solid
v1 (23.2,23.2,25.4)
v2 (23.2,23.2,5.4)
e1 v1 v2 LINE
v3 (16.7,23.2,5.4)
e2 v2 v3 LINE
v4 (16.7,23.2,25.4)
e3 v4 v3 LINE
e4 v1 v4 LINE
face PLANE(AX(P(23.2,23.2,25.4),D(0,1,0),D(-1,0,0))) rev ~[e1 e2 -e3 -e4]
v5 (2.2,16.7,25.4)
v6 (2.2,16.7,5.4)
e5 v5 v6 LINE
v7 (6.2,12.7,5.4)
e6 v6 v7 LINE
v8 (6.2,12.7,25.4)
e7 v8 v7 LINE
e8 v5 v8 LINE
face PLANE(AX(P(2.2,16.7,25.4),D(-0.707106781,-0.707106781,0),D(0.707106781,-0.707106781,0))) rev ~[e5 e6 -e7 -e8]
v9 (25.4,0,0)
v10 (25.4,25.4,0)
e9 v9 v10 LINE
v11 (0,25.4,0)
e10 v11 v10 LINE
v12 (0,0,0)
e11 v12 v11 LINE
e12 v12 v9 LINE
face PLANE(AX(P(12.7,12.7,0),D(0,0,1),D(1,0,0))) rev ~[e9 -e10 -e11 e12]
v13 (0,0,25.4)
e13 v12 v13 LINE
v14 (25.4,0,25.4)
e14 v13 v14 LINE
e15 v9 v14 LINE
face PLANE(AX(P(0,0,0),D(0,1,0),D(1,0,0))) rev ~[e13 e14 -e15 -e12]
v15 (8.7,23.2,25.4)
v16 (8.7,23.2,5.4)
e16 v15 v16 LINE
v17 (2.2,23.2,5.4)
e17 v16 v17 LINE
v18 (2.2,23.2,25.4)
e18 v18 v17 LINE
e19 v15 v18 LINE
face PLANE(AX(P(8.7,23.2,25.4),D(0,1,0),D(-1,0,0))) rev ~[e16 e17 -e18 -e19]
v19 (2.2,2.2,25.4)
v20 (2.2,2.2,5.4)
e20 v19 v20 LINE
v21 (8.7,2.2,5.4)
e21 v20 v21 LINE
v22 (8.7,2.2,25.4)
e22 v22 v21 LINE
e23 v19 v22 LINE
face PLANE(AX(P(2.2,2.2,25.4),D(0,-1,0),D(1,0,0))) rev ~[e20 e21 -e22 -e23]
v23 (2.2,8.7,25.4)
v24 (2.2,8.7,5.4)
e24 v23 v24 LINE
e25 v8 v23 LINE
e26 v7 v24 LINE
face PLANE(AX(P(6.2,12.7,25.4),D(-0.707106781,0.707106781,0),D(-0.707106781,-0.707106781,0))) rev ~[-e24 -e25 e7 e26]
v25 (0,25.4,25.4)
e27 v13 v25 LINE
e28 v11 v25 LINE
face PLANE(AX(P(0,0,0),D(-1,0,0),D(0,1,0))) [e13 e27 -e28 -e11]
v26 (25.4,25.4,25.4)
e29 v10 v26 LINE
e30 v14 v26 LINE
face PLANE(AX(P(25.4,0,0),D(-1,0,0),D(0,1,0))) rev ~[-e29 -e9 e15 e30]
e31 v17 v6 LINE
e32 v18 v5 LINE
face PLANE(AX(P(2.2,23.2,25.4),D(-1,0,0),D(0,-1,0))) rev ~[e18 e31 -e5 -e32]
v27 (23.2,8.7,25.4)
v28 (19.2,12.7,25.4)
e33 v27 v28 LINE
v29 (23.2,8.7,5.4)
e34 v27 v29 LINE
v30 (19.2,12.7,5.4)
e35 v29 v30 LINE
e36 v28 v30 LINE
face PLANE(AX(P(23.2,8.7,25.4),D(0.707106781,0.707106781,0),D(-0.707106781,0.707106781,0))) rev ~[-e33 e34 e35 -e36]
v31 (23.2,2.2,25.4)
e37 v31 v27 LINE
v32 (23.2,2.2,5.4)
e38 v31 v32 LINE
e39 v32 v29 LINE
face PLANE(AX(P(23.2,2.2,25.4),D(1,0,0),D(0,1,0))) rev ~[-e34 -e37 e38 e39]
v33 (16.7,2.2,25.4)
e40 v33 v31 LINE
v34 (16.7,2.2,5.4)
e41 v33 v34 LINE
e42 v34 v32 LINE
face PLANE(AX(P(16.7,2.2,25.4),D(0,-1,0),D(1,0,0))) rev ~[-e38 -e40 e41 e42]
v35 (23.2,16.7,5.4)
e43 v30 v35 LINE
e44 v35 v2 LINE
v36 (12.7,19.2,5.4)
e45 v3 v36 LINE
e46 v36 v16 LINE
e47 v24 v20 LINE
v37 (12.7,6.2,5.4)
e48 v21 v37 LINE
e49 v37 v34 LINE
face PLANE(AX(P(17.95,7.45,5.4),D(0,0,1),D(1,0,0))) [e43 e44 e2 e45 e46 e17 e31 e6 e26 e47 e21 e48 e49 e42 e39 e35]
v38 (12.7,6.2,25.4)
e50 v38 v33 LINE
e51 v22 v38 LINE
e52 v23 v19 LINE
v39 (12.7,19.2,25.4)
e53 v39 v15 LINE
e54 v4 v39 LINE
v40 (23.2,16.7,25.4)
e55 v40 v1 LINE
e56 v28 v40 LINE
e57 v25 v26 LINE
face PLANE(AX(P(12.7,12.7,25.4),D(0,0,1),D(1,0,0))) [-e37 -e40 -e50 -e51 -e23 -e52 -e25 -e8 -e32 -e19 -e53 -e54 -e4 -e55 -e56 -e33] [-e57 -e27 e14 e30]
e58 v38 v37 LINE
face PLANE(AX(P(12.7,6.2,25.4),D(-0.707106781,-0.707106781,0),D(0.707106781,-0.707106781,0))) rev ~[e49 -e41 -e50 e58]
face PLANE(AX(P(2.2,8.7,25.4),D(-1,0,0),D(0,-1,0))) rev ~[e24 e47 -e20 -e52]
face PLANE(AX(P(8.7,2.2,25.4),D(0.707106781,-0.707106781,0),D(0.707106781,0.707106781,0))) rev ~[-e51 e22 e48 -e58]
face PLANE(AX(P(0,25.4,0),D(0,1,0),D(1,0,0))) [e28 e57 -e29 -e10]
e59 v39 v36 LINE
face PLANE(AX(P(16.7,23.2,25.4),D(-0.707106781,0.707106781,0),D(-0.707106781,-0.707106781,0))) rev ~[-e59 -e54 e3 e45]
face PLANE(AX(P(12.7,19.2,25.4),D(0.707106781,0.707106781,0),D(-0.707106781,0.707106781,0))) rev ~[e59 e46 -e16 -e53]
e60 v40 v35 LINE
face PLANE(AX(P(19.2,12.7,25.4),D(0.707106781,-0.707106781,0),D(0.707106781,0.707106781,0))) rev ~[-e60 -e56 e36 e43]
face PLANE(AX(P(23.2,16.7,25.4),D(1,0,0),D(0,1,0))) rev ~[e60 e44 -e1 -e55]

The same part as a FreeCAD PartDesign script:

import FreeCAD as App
import Part
import Sketcher
Q = App.Units.Quantity

doc = App.newDocument("Part")
body = doc.addObject("PartDesign::Body", "Body")

# Sketch on XY plane
sketch1 = body.newObject("Sketcher::SketchObject", "Sketch")
sketch1.AttachmentSupport = (doc.getObject("XY_Plane"), [""])
sketch1.MapMode = "FlatFace"
sketch1.addGeometry([
    Part.LineSegment(App.Vector(0, 25, 0), App.Vector(0, 0, 0)),
    Part.LineSegment(App.Vector(0, 0, 0), App.Vector(25, 0, 0)),
    Part.LineSegment(App.Vector(25, 0, 0), App.Vector(25, 25, 0)),
    Part.LineSegment(App.Vector(25, 25, 0), App.Vector(0, 25, 0)),
], False)
sketch1.addConstraint([
    Sketcher.Constraint("Coincident", 0, 2, 1, 1),
    Sketcher.Constraint("Coincident", 1, 2, 2, 1),
    Sketcher.Constraint("Coincident", 2, 2, 3, 1),
    Sketcher.Constraint("Coincident", 3, 2, 0, 1),
    Sketcher.Constraint("Vertical", 0),
    Sketcher.Constraint("Horizontal", 1),
    Sketcher.Constraint("Vertical", 2),
    Sketcher.Constraint("Horizontal", 3),
    Sketcher.Constraint("Coincident", 0, 2, -1, 1),
    Sketcher.Constraint("Equal", 3, 0),
    Sketcher.Constraint("DistanceX", 1, 1, 1, 2, Q("25.4 mm")),
])
pad1 = body.newObject("PartDesign::Pad", "Pad")
pad1.Profile = sketch1
pad1.Length = 25.4

# Sketch on XY plane
sketch2 = body.newObject("Sketcher::SketchObject", "Sketch001")
sketch2.AttachmentSupport = (doc.getObject("XY_Plane"), [""])
sketch2.MapMode = "FlatFace"
sketch2.AttachmentOffset = App.Placement(App.Vector(0, 0, 25.4), App.Rotation())
sketch2.addGeometry([
    Part.LineSegment(App.Vector(13, 6, 0), App.Vector(17, 2, 0)),  # 0
    Part.LineSegment(App.Vector(17, 2, 0), App.Vector(23, 2, 0)),  # 1
    Part.LineSegment(App.Vector(23, 2, 0), App.Vector(23, 9, 0)),  # 2
    Part.LineSegment(App.Vector(23, 9, 0), App.Vector(19, 13, 0)),  # 3
    Part.LineSegment(App.Vector(19, 13, 0), App.Vector(23, 17, 0)),  # 4
    Part.LineSegment(App.Vector(23, 17, 0), App.Vector(23, 23, 0)),  # 5
    Part.LineSegment(App.Vector(23, 23, 0), App.Vector(17, 23, 0)),  # 6
    Part.LineSegment(App.Vector(17, 23, 0), App.Vector(13, 19, 0)),  # 7
    Part.LineSegment(App.Vector(13, 19, 0), App.Vector(9, 23, 0)),  # 8
    Part.LineSegment(App.Vector(9, 23, 0), App.Vector(2, 23, 0)),  # 9
    Part.LineSegment(App.Vector(2, 23, 0), App.Vector(2, 17, 0)),  # 10
    Part.LineSegment(App.Vector(2, 17, 0), App.Vector(6, 13, 0)),  # 11
    Part.LineSegment(App.Vector(6, 13, 0), App.Vector(2, 9, 0)),  # 12
    Part.LineSegment(App.Vector(2, 9, 0), App.Vector(2, 2, 0)),  # 13
    Part.LineSegment(App.Vector(2, 2, 0), App.Vector(9, 2, 0)),  # 14
    Part.LineSegment(App.Vector(9, 2, 0), App.Vector(13, 6, 0)),  # 15
], False)
sketch2.addConstraint([
    Sketcher.Constraint("Coincident", 0, 2, 1, 1),
    Sketcher.Constraint("Coincident", 1, 2, 2, 1),
    Sketcher.Constraint("Coincident", 2, 2, 3, 1),
    Sketcher.Constraint("Coincident", 3, 2, 4, 1),
    Sketcher.Constraint("Coincident", 4, 2, 5, 1),
    Sketcher.Constraint("Coincident", 5, 2, 6, 1),
    Sketcher.Constraint("Coincident", 6, 2, 7, 1),
    Sketcher.Constraint("Coincident", 7, 2, 8, 1),
    Sketcher.Constraint("Coincident", 8, 2, 9, 1),
    Sketcher.Constraint("Coincident", 9, 2, 10, 1),
    Sketcher.Constraint("Coincident", 10, 2, 11, 1),
    Sketcher.Constraint("Coincident", 11, 2, 12, 1),
    Sketcher.Constraint("Coincident", 12, 2, 13, 1),
    Sketcher.Constraint("Coincident", 13, 2, 14, 1),
    Sketcher.Constraint("Coincident", 14, 2, 15, 1),
    Sketcher.Constraint("Coincident", 15, 2, 0, 1),
    Sketcher.Constraint("Horizontal", 1),
    Sketcher.Constraint("Vertical", 2),
    Sketcher.Constraint("Vertical", 5),
    Sketcher.Constraint("Horizontal", 6),
    Sketcher.Constraint("Horizontal", 9),
    Sketcher.Constraint("Vertical", 10),
    Sketcher.Constraint("Vertical", 13),
    Sketcher.Constraint("Horizontal", 14),
    Sketcher.Constraint("Parallel", 0, 3),
    Sketcher.Constraint("Perpendicular", 3, 4),
    Sketcher.Constraint("Parallel", 4, 7),
    Sketcher.Constraint("Perpendicular", 7, 8),
    Sketcher.Constraint("Parallel", 8, 11),
    Sketcher.Constraint("Perpendicular", 11, 12),
    Sketcher.Constraint("Parallel", 12, 15),
    Sketcher.Constraint("Horizontal", 6, 2, 8, 2),
    Sketcher.Constraint("Horizontal", 4, 2, 10, 2),
    Sketcher.Constraint("Horizontal", 3, 2, 11, 2),
    Sketcher.Constraint("Horizontal", 2, 2, 12, 2),
    Sketcher.Constraint("Horizontal", 1, 2, 13, 2),
    Sketcher.Constraint("Vertical", 2, 2, 4, 2),
    Sketcher.Constraint("Vertical", 0, 2, 6, 2),
    Sketcher.Constraint("Vertical", 10, 2, 12, 2),
    Sketcher.Constraint("Vertical", 8, 2, 14, 2),
    Sketcher.Constraint("Equal", 6, 9),
    Sketcher.Constraint("Equal", 14, 2),
    Sketcher.Constraint("Equal", 2, 5),
    Sketcher.Constraint("Equal", 0, 3),
    Sketcher.Constraint("DistanceX", 1, 1, 1, 2, Q("6.5 mm")),
    Sketcher.Constraint("DistanceX", 3, 2, 2, 2, Q("4 mm")),
    Sketcher.Constraint("DistanceX", -1, 1, 0, 2, Q("16.7 mm")),
    Sketcher.Constraint("DistanceY", -1, 1, 0, 2, Q("2.2 mm")),
])
pocket1 = body.newObject("PartDesign::Pocket", "Pocket")
pocket1.Profile = sketch2
pocket1.Length = 20

doc.recompute()
